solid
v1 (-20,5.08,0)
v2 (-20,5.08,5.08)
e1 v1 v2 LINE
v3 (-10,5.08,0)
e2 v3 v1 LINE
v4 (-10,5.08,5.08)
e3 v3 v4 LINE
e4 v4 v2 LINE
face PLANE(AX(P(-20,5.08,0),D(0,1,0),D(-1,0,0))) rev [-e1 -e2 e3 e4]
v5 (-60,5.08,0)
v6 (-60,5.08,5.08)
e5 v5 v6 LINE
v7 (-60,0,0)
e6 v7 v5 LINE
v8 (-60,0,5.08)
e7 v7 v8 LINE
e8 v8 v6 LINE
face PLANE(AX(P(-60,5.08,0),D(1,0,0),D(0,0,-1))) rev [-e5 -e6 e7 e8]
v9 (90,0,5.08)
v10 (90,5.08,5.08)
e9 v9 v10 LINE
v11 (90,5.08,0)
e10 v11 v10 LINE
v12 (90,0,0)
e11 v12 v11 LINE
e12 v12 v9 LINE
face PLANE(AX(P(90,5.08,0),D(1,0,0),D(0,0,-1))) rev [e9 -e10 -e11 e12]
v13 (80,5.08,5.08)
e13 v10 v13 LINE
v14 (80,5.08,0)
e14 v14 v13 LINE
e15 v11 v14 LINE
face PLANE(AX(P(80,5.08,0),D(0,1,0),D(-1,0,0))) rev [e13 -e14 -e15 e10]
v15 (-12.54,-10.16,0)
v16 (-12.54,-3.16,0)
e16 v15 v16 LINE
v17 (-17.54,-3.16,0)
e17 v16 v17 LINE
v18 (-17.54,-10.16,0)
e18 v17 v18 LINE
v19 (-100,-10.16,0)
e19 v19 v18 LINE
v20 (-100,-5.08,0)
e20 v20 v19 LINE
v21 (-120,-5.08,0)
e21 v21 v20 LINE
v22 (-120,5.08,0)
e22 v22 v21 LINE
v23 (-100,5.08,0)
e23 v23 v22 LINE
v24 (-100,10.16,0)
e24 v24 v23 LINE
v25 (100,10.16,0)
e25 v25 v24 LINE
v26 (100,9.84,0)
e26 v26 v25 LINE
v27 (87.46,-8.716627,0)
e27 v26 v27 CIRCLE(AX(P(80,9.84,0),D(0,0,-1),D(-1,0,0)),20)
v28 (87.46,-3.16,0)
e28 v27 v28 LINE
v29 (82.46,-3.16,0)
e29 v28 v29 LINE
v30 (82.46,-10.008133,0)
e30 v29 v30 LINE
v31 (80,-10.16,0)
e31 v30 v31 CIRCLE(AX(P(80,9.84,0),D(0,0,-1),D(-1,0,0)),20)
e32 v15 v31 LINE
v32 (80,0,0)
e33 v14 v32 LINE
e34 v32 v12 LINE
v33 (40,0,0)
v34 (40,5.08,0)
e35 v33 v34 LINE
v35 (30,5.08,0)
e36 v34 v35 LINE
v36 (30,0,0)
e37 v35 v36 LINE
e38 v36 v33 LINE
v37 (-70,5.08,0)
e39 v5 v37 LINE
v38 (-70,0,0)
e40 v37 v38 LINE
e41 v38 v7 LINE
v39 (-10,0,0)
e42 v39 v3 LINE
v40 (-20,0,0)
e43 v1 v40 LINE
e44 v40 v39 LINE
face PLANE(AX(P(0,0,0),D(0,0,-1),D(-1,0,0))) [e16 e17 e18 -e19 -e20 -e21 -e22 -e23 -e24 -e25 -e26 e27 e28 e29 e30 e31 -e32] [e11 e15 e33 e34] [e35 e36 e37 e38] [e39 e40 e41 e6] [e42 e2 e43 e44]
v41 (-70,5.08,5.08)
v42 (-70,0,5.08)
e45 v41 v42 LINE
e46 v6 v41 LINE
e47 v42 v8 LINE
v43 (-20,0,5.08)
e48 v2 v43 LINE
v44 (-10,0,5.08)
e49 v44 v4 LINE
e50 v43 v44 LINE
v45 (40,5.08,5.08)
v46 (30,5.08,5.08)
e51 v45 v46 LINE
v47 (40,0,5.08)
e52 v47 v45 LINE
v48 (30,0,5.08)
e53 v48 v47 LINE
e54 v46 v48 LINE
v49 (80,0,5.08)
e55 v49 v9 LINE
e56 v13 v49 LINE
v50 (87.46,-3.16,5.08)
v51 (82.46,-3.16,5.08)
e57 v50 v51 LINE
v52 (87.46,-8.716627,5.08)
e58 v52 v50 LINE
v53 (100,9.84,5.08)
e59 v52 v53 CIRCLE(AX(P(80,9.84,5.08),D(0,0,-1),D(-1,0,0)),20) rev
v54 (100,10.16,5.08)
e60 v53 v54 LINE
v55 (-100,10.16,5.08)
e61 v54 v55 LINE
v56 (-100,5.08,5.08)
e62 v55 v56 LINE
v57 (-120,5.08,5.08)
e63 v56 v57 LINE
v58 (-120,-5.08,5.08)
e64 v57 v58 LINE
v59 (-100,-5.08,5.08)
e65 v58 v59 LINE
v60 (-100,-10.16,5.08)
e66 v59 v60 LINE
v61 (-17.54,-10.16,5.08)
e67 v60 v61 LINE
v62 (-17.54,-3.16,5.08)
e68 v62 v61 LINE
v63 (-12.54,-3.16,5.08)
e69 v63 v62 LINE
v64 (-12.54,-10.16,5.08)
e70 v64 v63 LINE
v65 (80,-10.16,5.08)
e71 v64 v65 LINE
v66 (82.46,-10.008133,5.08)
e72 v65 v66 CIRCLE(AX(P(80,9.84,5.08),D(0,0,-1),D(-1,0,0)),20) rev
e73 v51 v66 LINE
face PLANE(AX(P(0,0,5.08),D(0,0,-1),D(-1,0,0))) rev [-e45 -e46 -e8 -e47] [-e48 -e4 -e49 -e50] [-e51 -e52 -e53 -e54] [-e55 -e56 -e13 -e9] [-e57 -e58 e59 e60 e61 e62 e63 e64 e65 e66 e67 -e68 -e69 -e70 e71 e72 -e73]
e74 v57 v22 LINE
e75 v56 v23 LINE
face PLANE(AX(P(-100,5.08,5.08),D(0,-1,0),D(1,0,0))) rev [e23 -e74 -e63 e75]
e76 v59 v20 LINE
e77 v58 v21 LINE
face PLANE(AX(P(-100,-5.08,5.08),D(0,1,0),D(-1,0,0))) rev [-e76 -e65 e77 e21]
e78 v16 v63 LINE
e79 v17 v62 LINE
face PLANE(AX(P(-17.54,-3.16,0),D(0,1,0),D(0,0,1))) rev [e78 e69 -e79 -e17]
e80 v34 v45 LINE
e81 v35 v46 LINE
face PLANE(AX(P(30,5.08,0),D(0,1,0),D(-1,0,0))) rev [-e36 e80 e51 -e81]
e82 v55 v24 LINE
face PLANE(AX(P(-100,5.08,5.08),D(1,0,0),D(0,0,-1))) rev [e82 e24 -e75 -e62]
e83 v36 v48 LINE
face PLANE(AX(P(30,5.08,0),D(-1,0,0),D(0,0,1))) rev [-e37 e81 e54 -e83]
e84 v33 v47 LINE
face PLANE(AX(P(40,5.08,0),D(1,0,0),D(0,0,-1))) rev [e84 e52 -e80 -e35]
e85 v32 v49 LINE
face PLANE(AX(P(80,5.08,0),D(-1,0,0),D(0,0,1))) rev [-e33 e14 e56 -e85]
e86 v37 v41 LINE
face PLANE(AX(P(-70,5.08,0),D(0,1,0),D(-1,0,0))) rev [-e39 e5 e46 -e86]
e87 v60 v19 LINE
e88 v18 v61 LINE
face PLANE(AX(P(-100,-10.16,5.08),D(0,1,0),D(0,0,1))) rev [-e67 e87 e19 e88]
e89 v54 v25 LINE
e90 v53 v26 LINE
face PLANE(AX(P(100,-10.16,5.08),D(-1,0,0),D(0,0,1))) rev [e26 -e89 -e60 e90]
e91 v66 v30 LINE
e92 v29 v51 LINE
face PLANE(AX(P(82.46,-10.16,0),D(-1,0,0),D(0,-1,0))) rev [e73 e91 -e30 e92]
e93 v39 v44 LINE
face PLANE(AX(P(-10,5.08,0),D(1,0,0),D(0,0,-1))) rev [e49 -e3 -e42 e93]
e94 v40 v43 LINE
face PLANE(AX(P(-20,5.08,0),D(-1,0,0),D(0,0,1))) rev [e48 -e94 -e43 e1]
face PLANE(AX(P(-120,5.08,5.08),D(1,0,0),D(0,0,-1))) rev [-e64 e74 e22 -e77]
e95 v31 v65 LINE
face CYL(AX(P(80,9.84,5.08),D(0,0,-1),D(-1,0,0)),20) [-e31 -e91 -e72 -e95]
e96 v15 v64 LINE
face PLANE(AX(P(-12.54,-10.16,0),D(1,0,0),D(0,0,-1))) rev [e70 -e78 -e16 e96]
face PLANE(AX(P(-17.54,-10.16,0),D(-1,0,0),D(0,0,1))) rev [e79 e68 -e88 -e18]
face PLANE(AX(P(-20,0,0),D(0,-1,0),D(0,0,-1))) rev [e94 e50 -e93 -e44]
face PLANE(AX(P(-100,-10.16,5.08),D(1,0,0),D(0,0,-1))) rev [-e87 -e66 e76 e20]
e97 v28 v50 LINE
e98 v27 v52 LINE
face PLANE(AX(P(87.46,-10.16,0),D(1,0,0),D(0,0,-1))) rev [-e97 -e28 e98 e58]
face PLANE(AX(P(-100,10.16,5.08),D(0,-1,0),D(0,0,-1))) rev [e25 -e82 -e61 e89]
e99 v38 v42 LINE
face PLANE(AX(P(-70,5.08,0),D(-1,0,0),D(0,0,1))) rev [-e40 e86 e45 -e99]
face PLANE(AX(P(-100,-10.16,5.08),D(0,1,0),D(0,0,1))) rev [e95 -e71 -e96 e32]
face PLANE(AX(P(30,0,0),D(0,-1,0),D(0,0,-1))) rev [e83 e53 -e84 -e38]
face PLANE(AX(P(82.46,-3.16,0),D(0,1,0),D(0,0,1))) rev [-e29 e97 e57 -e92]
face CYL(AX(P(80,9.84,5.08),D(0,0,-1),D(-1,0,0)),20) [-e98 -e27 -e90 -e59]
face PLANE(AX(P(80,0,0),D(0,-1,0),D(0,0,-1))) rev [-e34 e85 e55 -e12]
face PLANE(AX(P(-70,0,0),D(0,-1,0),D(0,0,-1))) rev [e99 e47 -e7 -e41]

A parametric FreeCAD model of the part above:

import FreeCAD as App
import Part
import Sketcher
Q = App.Units.Quantity


def edges_at(feature, points):
    """Names of the edges that pass closest to the given points."""
    edges = feature.Shape.Edges
    near = lambda p: min(range(len(edges)), key=lambda i: edges[i].distToShape(Part.Vertex(*p))[0])
    return sorted({f"Edge{near(p) + 1}" for p in points})


def add_polygon(sketch, points):
    """Adds a closed chain of lines whose ends are joined by coincident constraints."""
    first, n = sketch.GeometryCount, len(points)
    for a, b in zip(points, points[1:] + points[:1]):
        sketch.addGeometry(Part.LineSegment(App.Vector(*a, 0), App.Vector(*b, 0)), False)
    for i in range(n):
        sketch.addConstraint(Sketcher.Constraint("Coincident", first + i, 2, first + (i + 1) % n, 1))

doc = App.newDocument("Part")
params = doc.addObject("Spreadsheet::Sheet", "Params")
for row, (alias, value) in enumerate([
    ("sketch1_width", "20 mm"),
    ("sketch1_width2", "200 mm"),
    ("sketch1_height", "5.08 mm"),
    ("sketch1_height2", "10.16 mm"),
    ("pad1_length", "5.08 mm"),
    ("fillet_radius", "20 mm"),
    ("sketch2_width", "5 mm"),
    ("sketch2_width2", "10 mm"),
    ("sketch2_height", "7 mm"),
    ("sketch2_height2", "5.08 mm"),
], start=1):
    params.set(f"A{row}", alias)
    params.set(f"B{row}", "=" + value)
    params.setAlias(f"B{row}", alias)

body = doc.addObject("PartDesign::Body", "Body")

sketch1 = body.newObject("Sketcher::SketchObject", "Sketch")
sketch1.AttachmentSupport = (doc.getObject("XY_Plane"), [""])
sketch1.MapMode = "FlatFace"
add_polygon(sketch1, [(-100, 10), (-100, 5), (-120, 5), (-120, -5), (-100, -5), (-100, -10), (100, -10), (100, 10)])
sketch1.addConstraint([
    Sketcher.Constraint("Vertical", 0),
    Sketcher.Constraint("Horizontal", 1),
    Sketcher.Constraint("Vertical", 2),
    Sketcher.Constraint("Horizontal", 3),
    Sketcher.Constraint("Vertical", 4),
    Sketcher.Constraint("Horizontal", 5),
    Sketcher.Constraint("Vertical", 6),
    Sketcher.Constraint("Horizontal", 7),
    Sketcher.Constraint("Symmetric", 4, 2, 6, 2, -1, 1),
    Sketcher.Constraint("Symmetric", 0, 2, 3, 2, -1),
    Sketcher.Constraint("DistanceX", 1, 2, 1, 1, Q("20 mm")),
    Sketcher.Constraint("DistanceX", 5, 1, 5, 2, Q("200 mm")),
    Sketcher.Constraint("DistanceY", 0, 2, 0, 1, Q("5.08 mm")),
    Sketcher.Constraint("DistanceY", 2, 2, 2, 1, Q("10.16 mm")),
])
sketch1.setExpression("Constraints[18]", "Params.sketch1_width")
sketch1.setExpression("Constraints[19]", "Params.sketch1_width2")
sketch1.setExpression("Constraints[20]", "Params.sketch1_height")
sketch1.setExpression("Constraints[21]", "Params.sketch1_height2")
pad1 = body.newObject("PartDesign::Pad", "Pad")
pad1.Profile = sketch1
pad1.setExpression("Length", "Params.pad1_length")
doc.recompute()

fillet = body.newObject("PartDesign::Fillet", "Fillet")
fillet.Base = (pad1, edges_at(pad1, [(100, -10.16, 2.54)]))
fillet.setExpression("Radius", "Params.fillet_radius")

sketch2 = body.newObject("Sketcher::SketchObject", "Sketch001")
sketch2.AttachmentSupport = (doc.getObject("XY_Plane"), [""])
sketch2.MapMode = "FlatFace"
sketch2.AttachmentOffset = App.Placement(App.Vector(0, 0, 5.08), App.Rotation())
add_polygon(sketch2, [(-18, -3), (-18, -10), (-13, -10), (-13, -3)])
add_polygon(sketch2, [(82, -3), (82, -10), (87, -10), (87, -3)])
add_polygon(sketch2, [(-70, 5), (-70, 0), (-60, 0), (-60, 5)])
add_polygon(sketch2, [(-20, 5), (-20, 0), (-10, 0), (-10, 5)])
add_polygon(sketch2, [(30, 5), (30, 0), (40, 0), (40, 5)])
add_polygon(sketch2, [(80, 5), (80, 0), (90, 0), (90, 5)])
sketch2.addConstraint([
    Sketcher.Constraint("Vertical", 0),
    Sketcher.Constraint("Horizontal", 1),
    Sketcher.Constraint("Vertical", 2),
    Sketcher.Constraint("Horizontal", 3),
    Sketcher.Constraint("Vertical", 4),
    Sketcher.Constraint("Horizontal", 5),
    Sketcher.Constraint("Vertical", 6),
    Sketcher.Constraint("Horizontal", 7),
    Sketcher.Constraint("Vertical", 8),
    Sketcher.Constraint("Horizontal", 9),
    Sketcher.Constraint("Vertical", 10),
    Sketcher.Constraint("Horizontal", 11),
    Sketcher.Constraint("Vertical", 12),
    Sketcher.Constraint("Horizontal", 13),
    Sketcher.Constraint("Vertical", 14),
    Sketcher.Constraint("Horizontal", 15),
    Sketcher.Constraint("Vertical", 16),
    Sketcher.Constraint("Horizontal", 17),
    Sketcher.Constraint("Vertical", 18),
    Sketcher.Constraint("Horizontal", 19),
    Sketcher.Constraint("Vertical", 20),
    Sketcher.Constraint("Horizontal", 21),
    Sketcher.Constraint("Vertical", 22),
    Sketcher.Constraint("Horizontal", 23),
    Sketcher.Constraint("PointOnObject", 8, 2, -1),
    Sketcher.Constraint("PointOnObject", 12, 2, -1),
    Sketcher.Constraint("PointOnObject", 16, 2, -1),
    Sketcher.Constraint("PointOnObject", 20, 2, -1),
    Sketcher.Constraint("Horizontal", 1, 2, 4, 2),
    Sketcher.Constraint("Horizontal", 3, 2, 6, 2),
    Sketcher.Constraint("Horizontal", 11, 2, 14, 2),
    Sketcher.Constraint("Horizontal", 15, 2, 18, 2),
    Sketcher.Constraint("Horizontal", 19, 2, 22, 2),
    Sketcher.Constraint("Equal", 3, 5),
    Sketcher.Constraint("Equal", 11, 13),
    Sketcher.Constraint("Equal", 15, 17),
    Sketcher.Constraint("Equal", 19, 21),
    Sketcher.Constraint("DistanceX", 1, 1, 1, 2, Q("5 mm")),
    Sketcher.Constraint("DistanceX", 9, 1, 9, 2, Q("10 mm")),
    Sketcher.Constraint("DistanceY", 0, 2, 0, 1, Q("7 mm")),
    Sketcher.Constraint("DistanceX", 8, 2, -1, 1, Q("70 mm")),
    Sketcher.Constraint("DistanceX", 12, 2, -1, 1, Q("20 mm")),
    Sketcher.Constraint("DistanceX", -1, 1, 16, 2, Q("30 mm")),
    Sketcher.Constraint("DistanceX", -1, 1, 20, 2, Q("80 mm")),
    Sketcher.Constraint("DistanceX", 1, 2, 4, 2, Q("95 mm")),
    Sketcher.Constraint("DistanceY", 8, 2, 8, 1, Q("5.08 mm")),
    Sketcher.Constraint("DistanceX", 0, 2, -1, 1, Q("17.54 mm")),
    Sketcher.Constraint("DistanceY", 0, 2, -1, 1, Q("10.16 mm")),
])
sketch2.setExpression("Constraints[61]", "Params.sketch2_width")
sketch2.setExpression("Constraints[62]", "Params.sketch2_width2")
sketch2.setExpression("Constraints[63]", "Params.sketch2_height")
sketch2.setExpression("Constraints[69]", "Params.sketch2_height2")
pocket1 = body.newObject("PartDesign::Pocket", "Pocket")
pocket1.Profile = sketch2
pocket1.Type = "ThroughAll"

doc.recompute()
